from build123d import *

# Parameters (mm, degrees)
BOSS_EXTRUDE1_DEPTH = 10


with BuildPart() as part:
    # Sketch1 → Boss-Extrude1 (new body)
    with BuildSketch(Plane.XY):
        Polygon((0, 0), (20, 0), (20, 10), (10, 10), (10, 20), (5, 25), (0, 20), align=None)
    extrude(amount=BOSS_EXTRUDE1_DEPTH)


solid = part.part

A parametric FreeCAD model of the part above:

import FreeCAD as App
import Part
import Sketcher
from FreeCAD import Vector


def add_polygon(sketch, points):
    """Adds a closed chain of lines whose ends are joined by coincident constraints."""
    first, n = sketch.GeometryCount, len(points)
    for a, b in zip(points, points[1:] + points[:1]):
        sketch.addGeometry(Part.LineSegment(App.Vector(*a, 0), App.Vector(*b, 0)), False)
    for i in range(n):
        sketch.addConstraint(Sketcher.Constraint("Coincident", first + i, 2, first + (i + 1) % n, 1))

doc = App.newDocument("Part")
body = doc.addObject("PartDesign::Body", "Body")

# Sketch on XY plane
sketch1 = body.newObject("Sketcher::SketchObject", "Sketch")
sketch1.AttachmentSupport = (doc.getObject("XY_Plane"), [""])
sketch1.MapMode = "FlatFace"
add_polygon(sketch1, [(0, 0), (20, 0), (20, 10), (10, 10), (10, 20), (5, 25), (0, 20)])  # lines 0-6
sketch1.addConstraint(Sketcher.Constraint("Horizontal", 0))
sketch1.addConstraint(Sketcher.Constraint("Vertical", 1))
sketch1.addConstraint(Sketcher.Constraint("Horizontal", 2))
sketch1.addConstraint(Sketcher.Constraint("Vertical", 3))
sketch1.addConstraint(Sketcher.Constraint("Vertical", 6))
sketch1.addConstraint(Sketcher.Constraint("Coincident", 6, 2, -1, 1))
sketch1.addConstraint(Sketcher.Constraint("Perpendicular", 4, 5))
sketch1.addConstraint(Sketcher.Constraint("Horizontal", 3, 2, 5, 2))
sketch1.addConstraint(Sketcher.Constraint("Equal", 2, 1))
sketch1.addConstraint(Sketcher.Constraint("Equal", 1, 3))
sketch1.addConstraint(Sketcher.Constraint("Equal", 0, 6))
sketch1.addConstraint(Sketcher.Constraint("Equal", 4, 5))
sketch1.addConstraint(Sketcher.Constraint("DistanceX", 0, 1, 0, 2, 20.0))
pad1 = body.newObject("PartDesign::Pad", "Pad")
pad1.Profile = sketch1
pad1.Length = 10

doc.recompute()
